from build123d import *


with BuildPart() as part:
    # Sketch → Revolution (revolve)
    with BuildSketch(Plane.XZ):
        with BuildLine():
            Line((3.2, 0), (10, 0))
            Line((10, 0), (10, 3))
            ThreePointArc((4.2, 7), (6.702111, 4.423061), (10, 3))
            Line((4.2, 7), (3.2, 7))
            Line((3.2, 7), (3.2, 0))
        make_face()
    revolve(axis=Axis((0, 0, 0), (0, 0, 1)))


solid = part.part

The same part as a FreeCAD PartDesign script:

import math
import FreeCAD as App
import Part
import Sketcher

V = App.Vector
Q = App.Units.Quantity

doc = App.newDocument("Part")
params = doc.addObject("Spreadsheet::Sheet", "Params")
for row, (alias, value) in enumerate([
    ("sketch1_width", "1 mm"),
    ("sketch1_height", "3 mm"),
    ("sketch1_height2", "7 mm"),
    ("sketch1_width2", "6.8 mm"),
    ("revolution_angle", "360 deg"),
], start=1):
    params.set(f"A{row}", alias)
    params.set(f"B{row}", "=" + value)
    params.setAlias(f"B{row}", alias)

body = doc.addObject("PartDesign::Body", "Body")

sketch1 = body.newObject("Sketcher::SketchObject", "Sketch")
sketch1.AttachmentSupport = (doc.getObject("XZ_Plane"), [""])
sketch1.MapMode = "FlatFace"
sketch1.addGeometry([
    Part.LineSegment(V(3.2, 0, 0), V(10, 0, 0)),
    Part.LineSegment(V(10, 0, 0), V(10, 3, 0)),
    Part.ArcOfCircle(Part.Circle(V(11.9, 12, 0), V(0, 0, 1), 9.2), math.radians(-147), math.radians(-102)),
    Part.LineSegment(V(4.2, 7, 0), V(3.2, 7, 0)),
    Part.LineSegment(V(3.2, 7, 0), V(3.2, 0, 0)),
], False)
sketch1.addConstraint([
    Sketcher.Constraint("Coincident", 0, 2, 1, 1),
    Sketcher.Constraint("Coincident", 1, 2, 2, 2),
    Sketcher.Constraint("Coincident", 2, 1, 3, 1),
    Sketcher.Constraint("Coincident", 3, 2, 4, 1),
    Sketcher.Constraint("Coincident", 4, 2, 0, 1),
    Sketcher.Constraint("Horizontal", 0),
    Sketcher.Constraint("Vertical", 1),
    Sketcher.Constraint("Horizontal", 3),
    Sketcher.Constraint("Vertical", 4),
    Sketcher.Constraint("PointOnObject", 0, 2, -1),
    Sketcher.Constraint("DistanceX", 3, 2, 3, 1, Q("1 mm")),
    Sketcher.Constraint("DistanceY", 1, 1, 1, 2, Q("3 mm")),
    Sketcher.Constraint("DistanceY", 4, 2, 4, 1, Q("7 mm")),
    Sketcher.Constraint("DistanceX", 0, 1, 0, 2, Q("6.8 mm")),
    Sketcher.Constraint("DistanceX", -1, 1, 0, 2, Q("10 mm")),
    Sketcher.Constraint("Radius", 2, Q("9.204102 mm")),
])
sketch1.setExpression("Constraints[10]", "Params.sketch1_width")
sketch1.setExpression("Constraints[11]", "Params.sketch1_height")
sketch1.setExpression("Constraints[12]", "Params.sketch1_height2")
sketch1.setExpression("Constraints[13]", "Params.sketch1_width2")
revolution = body.newObject("PartDesign::Revolution", "Revolution")
revolution.Profile = sketch1
revolution.ReferenceAxis = (sketch1, ["V_Axis"])
revolution.setExpression("Angle", "Params.revolution_angle")

doc.recompute()
